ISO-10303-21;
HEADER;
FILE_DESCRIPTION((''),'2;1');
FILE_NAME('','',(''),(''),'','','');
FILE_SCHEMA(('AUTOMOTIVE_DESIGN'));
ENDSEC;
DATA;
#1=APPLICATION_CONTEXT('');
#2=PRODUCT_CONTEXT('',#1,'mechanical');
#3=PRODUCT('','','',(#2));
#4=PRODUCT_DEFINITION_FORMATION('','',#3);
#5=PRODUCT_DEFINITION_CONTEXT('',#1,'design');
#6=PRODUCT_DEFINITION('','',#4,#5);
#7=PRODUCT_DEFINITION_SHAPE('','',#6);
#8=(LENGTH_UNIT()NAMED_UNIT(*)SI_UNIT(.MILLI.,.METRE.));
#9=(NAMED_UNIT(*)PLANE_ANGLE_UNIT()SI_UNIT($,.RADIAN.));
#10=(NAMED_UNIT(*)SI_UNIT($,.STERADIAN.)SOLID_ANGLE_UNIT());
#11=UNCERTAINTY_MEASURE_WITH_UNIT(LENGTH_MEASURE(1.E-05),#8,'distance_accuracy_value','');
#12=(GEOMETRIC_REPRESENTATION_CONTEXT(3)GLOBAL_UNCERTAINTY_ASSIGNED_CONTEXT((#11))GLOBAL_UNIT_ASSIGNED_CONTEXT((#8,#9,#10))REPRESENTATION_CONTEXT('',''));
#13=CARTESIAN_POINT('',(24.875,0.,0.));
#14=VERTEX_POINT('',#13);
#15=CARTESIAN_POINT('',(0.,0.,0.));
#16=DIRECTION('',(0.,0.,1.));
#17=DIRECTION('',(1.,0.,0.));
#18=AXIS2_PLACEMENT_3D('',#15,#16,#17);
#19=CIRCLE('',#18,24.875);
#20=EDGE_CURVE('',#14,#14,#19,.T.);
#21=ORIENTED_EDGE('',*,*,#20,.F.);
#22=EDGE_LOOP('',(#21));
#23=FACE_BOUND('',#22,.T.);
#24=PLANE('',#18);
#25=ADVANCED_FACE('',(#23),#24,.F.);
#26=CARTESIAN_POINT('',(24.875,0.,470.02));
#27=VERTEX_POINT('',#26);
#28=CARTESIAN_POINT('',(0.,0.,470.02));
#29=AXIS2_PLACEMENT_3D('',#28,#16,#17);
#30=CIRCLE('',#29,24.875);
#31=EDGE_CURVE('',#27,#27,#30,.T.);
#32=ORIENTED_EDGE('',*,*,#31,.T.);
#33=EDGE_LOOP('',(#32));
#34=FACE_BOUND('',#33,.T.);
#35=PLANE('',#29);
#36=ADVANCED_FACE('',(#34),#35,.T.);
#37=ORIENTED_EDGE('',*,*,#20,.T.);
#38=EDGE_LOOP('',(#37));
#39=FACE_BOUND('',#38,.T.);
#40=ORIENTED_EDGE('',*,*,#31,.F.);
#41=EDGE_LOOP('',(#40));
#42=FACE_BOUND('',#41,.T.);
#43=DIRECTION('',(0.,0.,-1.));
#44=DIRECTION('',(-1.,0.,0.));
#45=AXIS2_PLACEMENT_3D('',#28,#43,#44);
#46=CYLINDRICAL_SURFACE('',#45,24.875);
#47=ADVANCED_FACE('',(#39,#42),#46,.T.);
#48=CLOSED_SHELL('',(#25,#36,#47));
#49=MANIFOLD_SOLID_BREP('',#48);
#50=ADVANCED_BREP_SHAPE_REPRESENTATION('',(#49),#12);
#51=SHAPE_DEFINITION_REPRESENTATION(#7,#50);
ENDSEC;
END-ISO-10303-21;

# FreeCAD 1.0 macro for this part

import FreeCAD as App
import Part
import Sketcher

V = App.Vector

doc = App.newDocument("Part")
body = doc.addObject("PartDesign::Body", "Body")

# Sketch on XY plane
sketch1 = body.newObject("Sketcher::SketchObject", "Sketch")
sketch1.AttachmentSupport = (doc.getObject("XY_Plane"), [""])
sketch1.MapMode = "FlatFace"
sketch1.addGeometry(Part.Circle(V(0, 0, 0), V(0, 0, 1), 24.875), False)
sketch1.addConstraint([
    Sketcher.Constraint("Coincident", 0, 3, -1, 1),
    Sketcher.Constraint("Diameter", 0, 49.75),
])
pad1 = body.newObject("PartDesign::Pad", "Pad")
pad1.Profile = sketch1
pad1.Length = 470.02

doc.recompute()
